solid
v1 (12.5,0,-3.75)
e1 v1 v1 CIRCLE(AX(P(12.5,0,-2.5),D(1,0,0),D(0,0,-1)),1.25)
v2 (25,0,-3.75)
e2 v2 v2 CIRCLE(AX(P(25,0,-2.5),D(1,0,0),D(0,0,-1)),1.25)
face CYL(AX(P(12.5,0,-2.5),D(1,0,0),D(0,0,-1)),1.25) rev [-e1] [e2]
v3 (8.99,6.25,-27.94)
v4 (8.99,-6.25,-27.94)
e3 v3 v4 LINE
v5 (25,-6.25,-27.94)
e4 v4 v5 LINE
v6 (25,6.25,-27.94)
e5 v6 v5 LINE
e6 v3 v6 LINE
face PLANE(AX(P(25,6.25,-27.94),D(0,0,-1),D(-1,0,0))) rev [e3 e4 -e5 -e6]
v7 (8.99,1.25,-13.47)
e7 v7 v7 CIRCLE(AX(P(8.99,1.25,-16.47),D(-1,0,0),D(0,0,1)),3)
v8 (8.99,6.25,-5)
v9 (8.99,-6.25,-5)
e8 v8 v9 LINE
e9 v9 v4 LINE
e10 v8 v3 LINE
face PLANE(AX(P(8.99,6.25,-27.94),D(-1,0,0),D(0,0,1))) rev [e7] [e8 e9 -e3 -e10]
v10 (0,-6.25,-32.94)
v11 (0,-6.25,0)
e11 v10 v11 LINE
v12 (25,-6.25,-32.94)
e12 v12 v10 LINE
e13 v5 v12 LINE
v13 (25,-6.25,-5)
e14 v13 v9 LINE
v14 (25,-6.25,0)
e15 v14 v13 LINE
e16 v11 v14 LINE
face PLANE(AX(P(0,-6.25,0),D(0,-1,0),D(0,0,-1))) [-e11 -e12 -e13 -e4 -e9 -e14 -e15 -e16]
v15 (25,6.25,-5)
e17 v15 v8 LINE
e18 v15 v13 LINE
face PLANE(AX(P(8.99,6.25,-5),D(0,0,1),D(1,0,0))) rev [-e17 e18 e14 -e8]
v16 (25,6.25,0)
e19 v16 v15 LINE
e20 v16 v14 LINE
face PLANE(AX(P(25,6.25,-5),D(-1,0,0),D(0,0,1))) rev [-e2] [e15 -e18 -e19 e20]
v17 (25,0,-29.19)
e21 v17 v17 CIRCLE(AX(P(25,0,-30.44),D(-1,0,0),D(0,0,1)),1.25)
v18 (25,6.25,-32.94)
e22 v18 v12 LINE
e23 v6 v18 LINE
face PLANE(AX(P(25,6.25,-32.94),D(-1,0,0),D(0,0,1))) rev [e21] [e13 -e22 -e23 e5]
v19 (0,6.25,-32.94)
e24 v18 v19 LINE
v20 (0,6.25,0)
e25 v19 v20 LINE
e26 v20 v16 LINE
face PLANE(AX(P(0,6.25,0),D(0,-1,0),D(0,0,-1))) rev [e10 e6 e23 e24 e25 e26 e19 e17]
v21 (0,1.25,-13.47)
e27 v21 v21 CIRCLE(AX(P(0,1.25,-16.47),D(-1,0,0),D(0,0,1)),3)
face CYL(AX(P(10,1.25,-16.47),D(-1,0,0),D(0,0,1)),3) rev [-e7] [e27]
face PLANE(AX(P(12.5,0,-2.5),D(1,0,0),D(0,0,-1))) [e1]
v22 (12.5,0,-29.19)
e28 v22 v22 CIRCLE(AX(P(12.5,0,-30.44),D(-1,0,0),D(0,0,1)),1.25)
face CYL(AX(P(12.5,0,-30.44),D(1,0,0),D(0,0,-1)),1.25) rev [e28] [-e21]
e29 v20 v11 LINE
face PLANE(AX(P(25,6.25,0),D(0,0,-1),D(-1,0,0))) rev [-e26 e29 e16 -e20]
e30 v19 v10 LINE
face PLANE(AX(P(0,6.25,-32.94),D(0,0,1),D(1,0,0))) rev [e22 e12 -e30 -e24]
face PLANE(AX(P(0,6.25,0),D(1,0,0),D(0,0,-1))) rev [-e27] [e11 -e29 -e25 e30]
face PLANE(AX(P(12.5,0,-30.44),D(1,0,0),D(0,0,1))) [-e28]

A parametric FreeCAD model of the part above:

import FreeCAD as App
import Part
import Sketcher
from FreeCAD import Vector
Q = App.Units.Quantity

doc = App.newDocument("Part")
body = doc.addObject("PartDesign::Body", "Body")

sketch1 = doc.addObject("Sketcher::SketchObject", "Sketch")
body.addObject(sketch1)
sketch1.AttachmentSupport = (doc.XZ_Plane, [""])
sketch1.MapMode = "FlatFace"
sketch1.addGeometry([
    Part.LineSegment(Vector(0, -32.9, 0), Vector(0, 0, 0)),
    Part.LineSegment(Vector(0, 0, 0), Vector(25, 0, 0)),
    Part.LineSegment(Vector(25, 0, 0), Vector(25, -5, 0)),
    Part.LineSegment(Vector(25, -5, 0), Vector(9, -5, 0)),
    Part.LineSegment(Vector(9, -5, 0), Vector(9, -27.9, 0)),
    Part.LineSegment(Vector(9, -27.9, 0), Vector(25, -27.9, 0)),
    Part.LineSegment(Vector(25, -27.9, 0), Vector(25, -32.9, 0)),
    Part.LineSegment(Vector(25, -32.9, 0), Vector(0, -32.9, 0)),
], False)
sketch1.addConstraint([
    Sketcher.Constraint("Coincident", 0, 2, 1, 1),
    Sketcher.Constraint("Coincident", 1, 2, 2, 1),
    Sketcher.Constraint("Coincident", 2, 2, 3, 1),
    Sketcher.Constraint("Coincident", 3, 2, 4, 1),
    Sketcher.Constraint("Coincident", 4, 2, 5, 1),
    Sketcher.Constraint("Coincident", 5, 2, 6, 1),
    Sketcher.Constraint("Coincident", 6, 2, 7, 1),
    Sketcher.Constraint("Coincident", 7, 2, 0, 1),
    Sketcher.Constraint("Vertical", 0),
    Sketcher.Constraint("Horizontal", 1),
    Sketcher.Constraint("Vertical", 2),
    Sketcher.Constraint("Horizontal", 3),
    Sketcher.Constraint("Vertical", 4),
    Sketcher.Constraint("Horizontal", 5),
    Sketcher.Constraint("Vertical", 6),
    Sketcher.Constraint("Horizontal", 7),
    Sketcher.Constraint("Coincident", 0, 2, -1, 1),
    Sketcher.Constraint("Vertical", 2, 2, 5, 2),
    Sketcher.Constraint("Equal", 2, 6),
    Sketcher.Constraint("DistanceX", 1, 1, 1, 2, Q("25 mm")),
    Sketcher.Constraint("DistanceY", 2, 2, 2, 1, Q("5 mm")),
    Sketcher.Constraint("DistanceX", 3, 2, 3, 1, Q("16.01 mm")),
    Sketcher.Constraint("DistanceY", 0, 1, 0, 2, Q("32.94 mm")),
])
pad1 = doc.addObject("PartDesign::Pad", "Pad")
body.addObject(pad1)
pad1.Profile = sketch1
pad1.Length = 12.5
pad1.Midplane = True

sketch2 = doc.addObject("Sketcher::SketchObject", "Sketch001")
body.addObject(sketch2)
sketch2.AttachmentSupport = (doc.YZ_Plane, [""])
sketch2.MapMode = "FlatFace"
sketch2.AttachmentOffset = App.Placement(Vector(0, 0, 25), App.Rotation())
sketch2.addGeometry(Part.Circle(Vector(0, -2.5, 0), Vector(0, 0, 1), 1.2), False)
sketch2.addConstraint([
    Sketcher.Constraint("PointOnObject", 0, 3, -2),
    Sketcher.Constraint("Diameter", 0, Q("2.5 mm")),
    Sketcher.Constraint("DistanceY", 0, 3, -1, 1, Q("2.5 mm")),
])
pocket1 = doc.addObject("PartDesign::Pocket", "Pocket")
body.addObject(pocket1)
pocket1.Profile = sketch2
pocket1.Length = 12.5
doc.recompute()

datumplane = doc.addObject("PartDesign::Plane", "DatumPlane")
body.addObject(datumplane)
datumplane.AttachmentSupport = (doc.XY_Plane, [""])
datumplane.MapMode = "FlatFace"
datumplane.AttachmentOffset = App.Placement(Vector(0, 0, -16.47), App.Rotation())
mirrored = doc.addObject("PartDesign::Mirrored", "Mirrored")
body.addObject(mirrored)
mirrored.Originals = [pocket1]
mirrored.MirrorPlane = (datumplane, [""])
body.Tip = mirrored

sketch3 = doc.addObject("Sketcher::SketchObject", "Sketch002")
body.addObject(sketch3)
sketch3.AttachmentSupport = (doc.YZ_Plane, [""])
sketch3.MapMode = "FlatFace"
sketch3.addGeometry(Part.Circle(Vector(1.2, -16.5, 0), Vector(0, 0, 1), 3), False)
sketch3.addConstraint([
    Sketcher.Constraint("Diameter", 0, Q("6 mm")),
    Sketcher.Constraint("DistanceX", -1, 1, 0, 3, Q("1.25 mm")),
    Sketcher.Constraint("DistanceY", 0, 3, -1, 1, Q("16.47 mm")),
])
pocket2 = doc.addObject("PartDesign::Pocket", "Pocket001")
body.addObject(pocket2)
pocket2.Profile = sketch3
pocket2.Length = 10
pocket2.Reversed = True

doc.recompute()
